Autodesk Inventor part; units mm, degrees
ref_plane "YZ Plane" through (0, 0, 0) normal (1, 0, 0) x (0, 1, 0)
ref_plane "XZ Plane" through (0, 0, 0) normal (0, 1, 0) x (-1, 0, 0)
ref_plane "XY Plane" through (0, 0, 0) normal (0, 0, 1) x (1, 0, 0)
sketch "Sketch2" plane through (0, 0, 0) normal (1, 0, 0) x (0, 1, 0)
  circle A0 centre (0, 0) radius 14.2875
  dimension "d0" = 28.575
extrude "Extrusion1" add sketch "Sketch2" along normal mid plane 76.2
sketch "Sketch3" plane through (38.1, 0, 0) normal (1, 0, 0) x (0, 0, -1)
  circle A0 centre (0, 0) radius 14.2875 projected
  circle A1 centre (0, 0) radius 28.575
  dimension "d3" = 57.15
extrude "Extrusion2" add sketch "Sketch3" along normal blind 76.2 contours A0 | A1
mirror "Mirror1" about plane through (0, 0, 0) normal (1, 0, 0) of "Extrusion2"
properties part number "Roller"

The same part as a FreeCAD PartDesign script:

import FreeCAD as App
import Part
import Sketcher
from FreeCAD import Vector
Q = App.Units.Quantity

doc = App.newDocument("Part")
body = doc.addObject("PartDesign::Body", "Body")

sketch1 = body.newObject("Sketcher::SketchObject", "Sketch")
sketch1.AttachmentSupport = (doc.getObject("YZ_Plane"), [""])
sketch1.MapMode = "FlatFace"
sketch1.addGeometry(Part.Circle(Vector(0, 0, 0), Vector(0, 0, 1), 14), False)
sketch1.addConstraint(Sketcher.Constraint("Coincident", 0, 3, -1, 1))
sketch1.addConstraint(Sketcher.Constraint("Diameter", 0, Q("1.125 in")))
pad1 = body.newObject("PartDesign::Pad", "Pad")
pad1.Profile = sketch1
pad1.Length = Q("3 in")
pad1.Midplane = True

sketch2 = body.newObject("Sketcher::SketchObject", "Sketch001")
sketch2.AttachmentSupport = (doc.getObject("YZ_Plane"), [""])
sketch2.MapMode = "FlatFace"
sketch2.AttachmentOffset = App.Placement(Vector(0, 0, 1.5 * 25.4), App.Rotation())
sketch2.addGeometry(Part.Circle(Vector(0, 0, 0), Vector(0, 0, 1), 29), False)
sketch2.addConstraint(Sketcher.Constraint("Coincident", 0, 3, -1, 1))
sketch2.addConstraint(Sketcher.Constraint("Diameter", 0, Q("2.25 in")))
pad2 = body.newObject("PartDesign::Pad", "Pad001")
pad2.Profile = sketch2
pad2.Length = Q("3 in")
doc.recompute()

mirrored = body.newObject("PartDesign::Mirrored", "Mirrored")
mirrored.Originals = [pad2]
mirrored.MirrorPlane = (doc.getObject("YZ_Plane"), [""])
body.Tip = mirrored

doc.recompute()
